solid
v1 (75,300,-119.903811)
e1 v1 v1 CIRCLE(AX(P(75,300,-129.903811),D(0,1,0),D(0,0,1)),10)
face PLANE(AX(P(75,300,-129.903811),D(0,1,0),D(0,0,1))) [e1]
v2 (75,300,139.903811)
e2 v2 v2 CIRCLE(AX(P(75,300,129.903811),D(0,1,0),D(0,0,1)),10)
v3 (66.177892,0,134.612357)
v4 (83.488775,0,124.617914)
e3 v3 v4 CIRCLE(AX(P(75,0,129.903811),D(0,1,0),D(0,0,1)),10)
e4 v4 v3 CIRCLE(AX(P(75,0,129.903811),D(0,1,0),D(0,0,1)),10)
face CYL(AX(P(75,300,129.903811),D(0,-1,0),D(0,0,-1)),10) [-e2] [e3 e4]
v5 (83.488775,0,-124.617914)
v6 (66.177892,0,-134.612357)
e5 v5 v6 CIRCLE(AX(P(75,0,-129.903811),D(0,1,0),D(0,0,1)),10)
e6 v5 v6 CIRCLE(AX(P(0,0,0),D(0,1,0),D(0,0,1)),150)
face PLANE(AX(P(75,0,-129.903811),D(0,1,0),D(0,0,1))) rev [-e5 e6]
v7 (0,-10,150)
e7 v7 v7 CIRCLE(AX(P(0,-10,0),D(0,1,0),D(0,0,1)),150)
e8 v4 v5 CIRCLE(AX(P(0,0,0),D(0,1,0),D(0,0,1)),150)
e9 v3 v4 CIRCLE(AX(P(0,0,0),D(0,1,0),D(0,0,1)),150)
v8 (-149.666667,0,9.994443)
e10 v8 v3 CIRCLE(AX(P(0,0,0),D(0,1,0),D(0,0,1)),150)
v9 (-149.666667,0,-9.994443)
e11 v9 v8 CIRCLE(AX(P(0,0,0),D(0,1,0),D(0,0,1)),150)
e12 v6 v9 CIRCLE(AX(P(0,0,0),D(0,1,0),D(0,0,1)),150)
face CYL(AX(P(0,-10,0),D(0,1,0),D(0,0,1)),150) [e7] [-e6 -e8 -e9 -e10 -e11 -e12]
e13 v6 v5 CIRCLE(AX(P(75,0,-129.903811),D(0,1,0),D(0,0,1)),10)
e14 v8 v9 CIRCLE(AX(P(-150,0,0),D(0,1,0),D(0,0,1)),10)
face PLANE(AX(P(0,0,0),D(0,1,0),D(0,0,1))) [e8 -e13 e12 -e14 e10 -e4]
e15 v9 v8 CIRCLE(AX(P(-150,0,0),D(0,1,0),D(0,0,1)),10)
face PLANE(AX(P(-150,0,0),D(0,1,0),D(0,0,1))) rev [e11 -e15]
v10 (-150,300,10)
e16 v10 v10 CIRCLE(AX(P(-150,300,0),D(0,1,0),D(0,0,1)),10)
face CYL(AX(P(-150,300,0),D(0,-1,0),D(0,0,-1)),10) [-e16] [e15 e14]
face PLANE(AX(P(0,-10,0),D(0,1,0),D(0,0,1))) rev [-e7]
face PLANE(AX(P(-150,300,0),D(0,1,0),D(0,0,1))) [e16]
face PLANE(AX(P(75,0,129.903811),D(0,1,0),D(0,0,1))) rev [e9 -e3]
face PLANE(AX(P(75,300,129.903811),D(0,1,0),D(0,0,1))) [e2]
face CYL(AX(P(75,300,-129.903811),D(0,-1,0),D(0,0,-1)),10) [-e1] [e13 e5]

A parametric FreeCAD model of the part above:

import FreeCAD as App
import Part
import Sketcher
Q = App.Units.Quantity

doc = App.newDocument("Part")
body = doc.addObject("PartDesign::Body", "Body")

sketch1 = body.newObject("Sketcher::SketchObject", "Sketch")
sketch1.AttachmentSupport = (doc.getObject("XZ_Plane"), [""])
sketch1.MapMode = "FlatFace"
sketch1.addGeometry(Part.Circle(App.Vector(-150, 0, 0), App.Vector(0, 0, 1), 10), False)
sketch1.addConstraint([
    Sketcher.Constraint("PointOnObject", 0, 3, -1),
    Sketcher.Constraint("Diameter", 0, Q("20 mm")),
    Sketcher.Constraint("DistanceX", 0, 3, -1, 1, Q("150 mm")),
])
pad1 = body.newObject("PartDesign::Pad", "Pad")
pad1.Profile = sketch1
pad1.Length = 300
pad1.Reversed = True
body2 = doc.addObject("PartDesign::Body", "Body001")

sketch2 = body2.newObject("Sketcher::SketchObject", "Sketch001")
sketch2.AttachmentSupport = (doc.getObject("XZ_Plane001"), [""])
sketch2.MapMode = "FlatFace"
sketch2.addGeometry(Part.Circle(App.Vector(75, -130, 0), App.Vector(0, 0, 1), 10), False)
sketch2.addConstraint([
    Sketcher.Constraint("Diameter", 0, Q("20 mm")),
    Sketcher.Constraint("DistanceX", -1, 1, 0, 3, Q("75 mm")),
    Sketcher.Constraint("DistanceY", 0, 3, -1, 1, Q("129.903811 mm")),
])
pad2 = body2.newObject("PartDesign::Pad", "Pad001")
pad2.Profile = sketch2
pad2.Length = 300
pad2.Reversed = True
body3 = doc.addObject("PartDesign::Body", "Body002")

sketch3 = body3.newObject("Sketcher::SketchObject", "Sketch002")
sketch3.AttachmentSupport = (doc.getObject("XZ_Plane002"), [""])
sketch3.MapMode = "FlatFace"
sketch3.addGeometry(Part.Circle(App.Vector(75, 130, 0), App.Vector(0, 0, 1), 10), False)
sketch3.addConstraint([
    Sketcher.Constraint("Diameter", 0, Q("20 mm")),
    Sketcher.Constraint("DistanceX", -1, 1, 0, 3, Q("75 mm")),
    Sketcher.Constraint("DistanceY", -1, 1, 0, 3, Q("129.903811 mm")),
])
pad3 = body3.newObject("PartDesign::Pad", "Pad002")
pad3.Profile = sketch3
pad3.Length = 300
pad3.Reversed = True
body.AllowCompound = True
doc.recompute()

boolean = body.newObject("PartDesign::Boolean", "Boolean")
boolean.Type = "Fuse"
boolean.addObjects([body2])
doc.recompute()

boolean2 = body.newObject("PartDesign::Boolean", "Boolean001")
boolean2.Type = "Fuse"
boolean2.addObjects([body3])

sketch4 = body.newObject("Sketcher::SketchObject", "Sketch003")
sketch4.AttachmentSupport = (doc.getObject("XZ_Plane"), [""])
sketch4.MapMode = "FlatFace"
sketch4.addGeometry(Part.Circle(App.Vector(0, 0, 0), App.Vector(0, 0, 1), 150), False)
sketch4.addConstraint([
    Sketcher.Constraint("Coincident", 0, 3, -1, 1),
    Sketcher.Constraint("Diameter", 0, Q("300 mm")),
])
pad4 = body.newObject("PartDesign::Pad", "Pad003")
pad4.Profile = sketch4
pad4.Length = 10

doc.recompute()
